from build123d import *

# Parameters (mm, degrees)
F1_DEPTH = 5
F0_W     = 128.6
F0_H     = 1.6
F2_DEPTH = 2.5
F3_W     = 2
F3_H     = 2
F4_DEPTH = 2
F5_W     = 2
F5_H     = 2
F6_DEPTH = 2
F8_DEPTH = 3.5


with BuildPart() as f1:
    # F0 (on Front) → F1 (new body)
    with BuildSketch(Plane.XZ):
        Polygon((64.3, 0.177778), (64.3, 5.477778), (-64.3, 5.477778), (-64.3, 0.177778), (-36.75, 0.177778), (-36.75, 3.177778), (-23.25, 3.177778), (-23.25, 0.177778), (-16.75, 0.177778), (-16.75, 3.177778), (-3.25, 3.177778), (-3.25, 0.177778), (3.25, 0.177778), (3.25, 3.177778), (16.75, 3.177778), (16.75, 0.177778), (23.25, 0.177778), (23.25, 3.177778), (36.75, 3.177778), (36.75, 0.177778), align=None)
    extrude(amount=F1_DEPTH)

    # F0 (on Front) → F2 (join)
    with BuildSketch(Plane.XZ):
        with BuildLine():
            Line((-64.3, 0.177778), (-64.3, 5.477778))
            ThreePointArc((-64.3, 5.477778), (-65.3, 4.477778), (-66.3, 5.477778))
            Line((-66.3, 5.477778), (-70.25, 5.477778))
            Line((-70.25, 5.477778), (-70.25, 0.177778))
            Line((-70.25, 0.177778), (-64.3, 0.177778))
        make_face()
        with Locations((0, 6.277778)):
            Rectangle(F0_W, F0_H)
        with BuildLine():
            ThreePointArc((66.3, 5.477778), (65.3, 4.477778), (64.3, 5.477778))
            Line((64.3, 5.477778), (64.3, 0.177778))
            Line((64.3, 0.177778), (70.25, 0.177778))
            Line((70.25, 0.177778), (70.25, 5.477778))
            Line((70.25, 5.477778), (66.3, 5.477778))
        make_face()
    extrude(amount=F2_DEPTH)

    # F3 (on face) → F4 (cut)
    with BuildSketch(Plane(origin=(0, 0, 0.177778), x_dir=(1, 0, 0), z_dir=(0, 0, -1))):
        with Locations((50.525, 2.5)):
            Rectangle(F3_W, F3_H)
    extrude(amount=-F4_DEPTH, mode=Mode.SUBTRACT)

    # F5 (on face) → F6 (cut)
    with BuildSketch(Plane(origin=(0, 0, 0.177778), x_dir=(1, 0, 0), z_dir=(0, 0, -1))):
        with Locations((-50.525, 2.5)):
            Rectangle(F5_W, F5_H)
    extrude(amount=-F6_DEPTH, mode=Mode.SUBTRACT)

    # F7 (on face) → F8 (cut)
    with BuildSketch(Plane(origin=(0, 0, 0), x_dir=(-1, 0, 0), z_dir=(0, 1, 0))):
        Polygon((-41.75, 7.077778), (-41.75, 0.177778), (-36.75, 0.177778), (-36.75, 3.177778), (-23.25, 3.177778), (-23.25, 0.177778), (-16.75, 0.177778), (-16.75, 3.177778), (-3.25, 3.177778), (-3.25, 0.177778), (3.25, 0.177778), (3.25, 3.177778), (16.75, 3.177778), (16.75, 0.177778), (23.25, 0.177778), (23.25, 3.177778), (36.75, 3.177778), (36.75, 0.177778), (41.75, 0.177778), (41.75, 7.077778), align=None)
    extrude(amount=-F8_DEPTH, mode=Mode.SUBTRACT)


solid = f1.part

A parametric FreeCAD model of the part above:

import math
import FreeCAD as App
import Part
import Sketcher

V = App.Vector


def add_polygon(sketch, points):
    """Adds a closed chain of lines whose ends are joined by coincident constraints."""
    first, n = sketch.GeometryCount, len(points)
    for a, b in zip(points, points[1:] + points[:1]):
        sketch.addGeometry(Part.LineSegment(App.Vector(*a, 0), App.Vector(*b, 0)), False)
    for i in range(n):
        sketch.addConstraint(Sketcher.Constraint("Coincident", first + i, 2, first + (i + 1) % n, 1))

doc = App.newDocument("Part")
body = doc.addObject("PartDesign::Body", "Body")

# Sketch on XZ plane
sketch1 = body.newObject("Sketcher::SketchObject", "Sketch")
sketch1.AttachmentSupport = (doc.getObject("XZ_Plane"), [""])
sketch1.MapMode = "FlatFace"
add_polygon(sketch1, [(64.3, 0.2), (64.3, 5.5), (-64.3, 5.5), (-64.3, 0.2), (-36.8, 0.2), (-36.8, 3.2), (-23.2, 3.2), (-23.2, 0.2), (-16.8, 0.2), (-16.8, 3.2), (-3.2, 3.2), (-3.2, 0.2), (3.2, 0.2), (3.2, 3.2), (16.8, 3.2), (16.8, 0.2), (23.2, 0.2), (23.2, 3.2), (36.8, 3.2), (36.8, 0.2)])  # lines 0-19
sketch1.addConstraint([
    Sketcher.Constraint("Vertical", 0),
    Sketcher.Constraint("Horizontal", 1),
    Sketcher.Constraint("Vertical", 2),
    Sketcher.Constraint("Horizontal", 3),
    Sketcher.Constraint("Vertical", 4),
    Sketcher.Constraint("Horizontal", 5),
    Sketcher.Constraint("Vertical", 6),
    Sketcher.Constraint("Horizontal", 7),
    Sketcher.Constraint("Vertical", 8),
    Sketcher.Constraint("Horizontal", 9),
    Sketcher.Constraint("Vertical", 10),
    Sketcher.Constraint("Horizontal", 11),
    Sketcher.Constraint("Vertical", 12),
    Sketcher.Constraint("Horizontal", 13),
    Sketcher.Constraint("Vertical", 14),
    Sketcher.Constraint("Horizontal", 15),
    Sketcher.Constraint("Vertical", 16),
    Sketcher.Constraint("Horizontal", 17),
    Sketcher.Constraint("Vertical", 18),
    Sketcher.Constraint("Horizontal", 19),
    Sketcher.Constraint("Symmetric", 9, 2, 12, 2, -2),
    Sketcher.Constraint("Symmetric", 7, 2, 14, 2, -2),
    Sketcher.Constraint("Symmetric", 5, 2, 16, 2, -2),
    Sketcher.Constraint("Symmetric", 3, 2, 18, 2, -2),
    Sketcher.Constraint("Horizontal", 3, 2, 6, 2),
    Sketcher.Constraint("Horizontal", 5, 2, 8, 2),
    Sketcher.Constraint("Horizontal", 7, 2, 10, 2),
    Sketcher.Constraint("Equal", 5, 9),
    Sketcher.Constraint("Equal", 7, 11),
    Sketcher.Constraint("Equal", 3, 19),
    Sketcher.Constraint("DistanceY", 4, 1, 4, 2, 3.0),
    Sketcher.Constraint("DistanceX", 1, 2, 1, 1, 128.6),
    Sketcher.Constraint("DistanceX", 5, 1, 5, 2, 13.5),
    Sketcher.Constraint("DistanceX", 7, 1, 7, 2, 6.5),
    Sketcher.Constraint("DistanceY", 0, 1, 0, 2, 5.3),
    Sketcher.Constraint("DistanceY", -1, 1, 4, 2, 3.177778),
])
pad1 = body.newObject("PartDesign::Pad", "Pad")
pad1.Profile = sketch1
pad1.Length = 5

# Sketch on XZ plane
sketch2 = body.newObject("Sketcher::SketchObject", "Sketch001")
sketch2.AttachmentSupport = (doc.getObject("XZ_Plane"), [""])
sketch2.MapMode = "FlatFace"
sketch2.addGeometry(Part.LineSegment(V(-64.3, 0.2, 0), V(-64.3, 5.5, 0)), False)  # 0
sketch2.addGeometry(Part.ArcOfCircle(Part.Circle(V(-65.3, 5.5, 0), V(0, 0, 1), 1), math.radians(180), math.radians(360)), False)  # 1
sketch2.addGeometry(Part.LineSegment(V(-66.3, 5.5, 0), V(-70.2, 5.5, 0)), False)  # 2
sketch2.addGeometry(Part.LineSegment(V(-70.2, 5.5, 0), V(-70.2, 0.2, 0)), False)  # 3
sketch2.addGeometry(Part.LineSegment(V(-70.2, 0.2, 0), V(-64.3, 0.2, 0)), False)  # 4
add_polygon(sketch2, [(-64.3, 7.1), (-64.3, 5.5), (64.3, 5.5), (64.3, 7.1)])  # lines 5-8
sketch2.addGeometry(Part.ArcOfCircle(Part.Circle(V(65.3, 5.5, 0), V(0, 0, 1), 1), math.radians(180), math.radians(360)), False)  # 9
sketch2.addGeometry(Part.LineSegment(V(64.3, 5.5, 0), V(64.3, 0.2, 0)), False)  # 10
sketch2.addGeometry(Part.LineSegment(V(64.3, 0.2, 0), V(70.2, 0.2, 0)), False)  # 11
sketch2.addGeometry(Part.LineSegment(V(70.2, 0.2, 0), V(70.2, 5.5, 0)), False)  # 12
sketch2.addGeometry(Part.LineSegment(V(70.2, 5.5, 0), V(66.3, 5.5, 0)), False)  # 13
sketch2.addConstraint([
    Sketcher.Constraint("Tangent", 0, 2, 1, 2),
    Sketcher.Constraint("Coincident", 1, 1, 2, 1),
    Sketcher.Constraint("Coincident", 2, 2, 3, 1),
    Sketcher.Constraint("Coincident", 3, 2, 4, 1),
    Sketcher.Constraint("Coincident", 4, 2, 0, 1),
    Sketcher.Constraint("Tangent", 9, 1, 10, 1),
    Sketcher.Constraint("Coincident", 10, 2, 11, 1),
    Sketcher.Constraint("Coincident", 11, 2, 12, 1),
    Sketcher.Constraint("Coincident", 12, 2, 13, 1),
    Sketcher.Constraint("Coincident", 13, 2, 9, 2),
    Sketcher.Constraint("Vertical", 0),
    Sketcher.Constraint("Horizontal", 2),
    Sketcher.Constraint("Vertical", 3),
    Sketcher.Constraint("Horizontal", 4),
    Sketcher.Constraint("Vertical", 5),
    Sketcher.Constraint("Horizontal", 6),
    Sketcher.Constraint("Vertical", 7),
    Sketcher.Constraint("Horizontal", 8),
    Sketcher.Constraint("Vertical", 10),
    Sketcher.Constraint("Horizontal", 11),
    Sketcher.Constraint("Vertical", 12),
    Sketcher.Constraint("Horizontal", 13),
    Sketcher.Constraint("Coincident", 5, 2, 0, 2),
    Sketcher.Constraint("Coincident", 9, 1, 6, 2),
    Sketcher.Constraint("Equal", 1, 9),
    Sketcher.Constraint("Symmetric", 4, 2, 10, 2, -2),
    Sketcher.Constraint("Symmetric", 2, 2, 12, 2, -2),
    Sketcher.Constraint("Horizontal", 0, 2, 1, 1),
    Sketcher.Constraint("Radius", 1, 1.0),
    Sketcher.Constraint("DistanceX", 6, 1, 6, 2, 128.6),
    Sketcher.Constraint("DistanceY", 0, 1, 0, 2, 5.3),
    Sketcher.Constraint("DistanceY", 5, 2, 5, 1, 1.6),
    Sketcher.Constraint("DistanceX", 2, 2, 2, 1, 3.95),
    Sketcher.Constraint("DistanceY", -1, 1, 7, 2, 7.077778),
])
pad2 = body.newObject("PartDesign::Pad", "Pad001")
pad2.Profile = sketch2
pad2.Length = 2.5

# Sketch on XY plane
sketch3 = body.newObject("Sketcher::SketchObject", "Sketch002")
sketch3.AttachmentSupport = (doc.getObject("XY_Plane"), [""])
sketch3.MapMode = "FlatFace"
sketch3.AttachmentOffset = App.Placement(V(0, 0, 0.177778), App.Rotation())
add_polygon(sketch3, [(49.5, -3.5), (49.5, -1.5), (51.5, -1.5), (51.5, -3.5)])  # lines 0-3
sketch3.addConstraint([
    Sketcher.Constraint("Vertical", 0),
    Sketcher.Constraint("Horizontal", 1),
    Sketcher.Constraint("Vertical", 2),
    Sketcher.Constraint("Horizontal", 3),
    Sketcher.Constraint("Equal", 3, 0),
    Sketcher.Constraint("DistanceX", 1, 1, 1, 2, 2.0),
    Sketcher.Constraint("DistanceY", 0, 2, -1, 1, 1.5),
    Sketcher.Constraint("DistanceX", -1, 1, 0, 2, 49.525),
])
pocket1 = body.newObject("PartDesign::Pocket", "Pocket")
pocket1.Profile = sketch3
pocket1.Length = 2
pocket1.Reversed = True

# Sketch on XY plane
sketch4 = body.newObject("Sketcher::SketchObject", "Sketch003")
sketch4.AttachmentSupport = (doc.getObject("XY_Plane"), [""])
sketch4.MapMode = "FlatFace"
sketch4.AttachmentOffset = App.Placement(V(0, 0, 0.177778), App.Rotation())
add_polygon(sketch4, [(-51.5, -3.5), (-51.5, -1.5), (-49.5, -1.5), (-49.5, -3.5)])  # lines 0-3
sketch4.addConstraint([
    Sketcher.Constraint("Vertical", 0),
    Sketcher.Constraint("Horizontal", 1),
    Sketcher.Constraint("Vertical", 2),
    Sketcher.Constraint("Horizontal", 3),
    Sketcher.Constraint("Equal", 3, 0),
    Sketcher.Constraint("DistanceX", 1, 1, 1, 2, 2.0),
    Sketcher.Constraint("DistanceY", 0, 2, -1, 1, 1.5),
    Sketcher.Constraint("DistanceX", 0, 2, -1, 1, 51.525),
])
pocket2 = body.newObject("PartDesign::Pocket", "Pocket001")
pocket2.Profile = sketch4
pocket2.Length = 2
pocket2.Reversed = True

# Sketch on XZ plane
sketch5 = body.newObject("Sketcher::SketchObject", "Sketch004")
sketch5.AttachmentSupport = (doc.getObject("XZ_Plane"), [""])
sketch5.MapMode = "FlatFace"
add_polygon(sketch5, [(41.8, 7.1), (41.8, 0.2), (36.8, 0.2), (36.8, 3.2), (23.2, 3.2), (23.2, 0.2), (16.8, 0.2), (16.8, 3.2), (3.2, 3.2), (3.2, 0.2), (-3.2, 0.2), (-3.2, 3.2), (-16.8, 3.2), (-16.8, 0.2), (-23.2, 0.2), (-23.2, 3.2), (-36.8, 3.2), (-36.8, 0.2), (-41.8, 0.2), (-41.8, 7.1)])  # lines 0-19
sketch5.addConstraint([
    Sketcher.Constraint("Vertical", 0),
    Sketcher.Constraint("Horizontal", 1),
    Sketcher.Constraint("Vertical", 2),
    Sketcher.Constraint("Horizontal", 3),
    Sketcher.Constraint("Vertical", 4),
    Sketcher.Constraint("Horizontal", 5),
    Sketcher.Constraint("Vertical", 6),
    Sketcher.Constraint("Horizontal", 7),
    Sketcher.Constraint("Vertical", 8),
    Sketcher.Constraint("Horizontal", 9),
    Sketcher.Constraint("Vertical", 10),
    Sketcher.Constraint("Horizontal", 11),
    Sketcher.Constraint("Vertical", 12),
    Sketcher.Constraint("Horizontal", 13),
    Sketcher.Constraint("Vertical", 14),
    Sketcher.Constraint("Horizontal", 15),
    Sketcher.Constraint("Vertical", 16),
    Sketcher.Constraint("Horizontal", 17),
    Sketcher.Constraint("Vertical", 18),
    Sketcher.Constraint("Horizontal", 19),
    Sketcher.Constraint("Symmetric", 7, 2, 10, 2, -2),
    Sketcher.Constraint("Symmetric", 5, 2, 12, 2, -2),
    Sketcher.Constraint("Symmetric", 3, 2, 14, 2, -2),
    Sketcher.Constraint("Symmetric", 1, 2, 16, 2, -2),
    Sketcher.Constraint("Horizontal", 1, 2, 4, 2),
    Sketcher.Constraint("Horizontal", 3, 2, 6, 2),
    Sketcher.Constraint("Horizontal", 5, 2, 8, 2),
    Sketcher.Constraint("Equal", 3, 7),
    Sketcher.Constraint("Equal", 5, 9),
    Sketcher.Constraint("Equal", 1, 17),
    Sketcher.Constraint("DistanceX", 1, 2, 1, 1, 5.0),
    Sketcher.Constraint("DistanceY", 2, 1, 2, 2, 3.0),
    Sketcher.Constraint("DistanceX", 3, 2, 3, 1, 13.5),
    Sketcher.Constraint("DistanceX", 5, 2, 5, 1, 6.5),
    Sketcher.Constraint("DistanceY", 0, 2, 0, 1, 6.9),
    Sketcher.Constraint("DistanceY", -1, 1, 2, 2, 3.177778),
])
pocket3 = body.newObject("PartDesign::Pocket", "Pocket002")
pocket3.Profile = sketch5
pocket3.Length = 3.5
pocket3.Reversed = True

doc.recompute()
